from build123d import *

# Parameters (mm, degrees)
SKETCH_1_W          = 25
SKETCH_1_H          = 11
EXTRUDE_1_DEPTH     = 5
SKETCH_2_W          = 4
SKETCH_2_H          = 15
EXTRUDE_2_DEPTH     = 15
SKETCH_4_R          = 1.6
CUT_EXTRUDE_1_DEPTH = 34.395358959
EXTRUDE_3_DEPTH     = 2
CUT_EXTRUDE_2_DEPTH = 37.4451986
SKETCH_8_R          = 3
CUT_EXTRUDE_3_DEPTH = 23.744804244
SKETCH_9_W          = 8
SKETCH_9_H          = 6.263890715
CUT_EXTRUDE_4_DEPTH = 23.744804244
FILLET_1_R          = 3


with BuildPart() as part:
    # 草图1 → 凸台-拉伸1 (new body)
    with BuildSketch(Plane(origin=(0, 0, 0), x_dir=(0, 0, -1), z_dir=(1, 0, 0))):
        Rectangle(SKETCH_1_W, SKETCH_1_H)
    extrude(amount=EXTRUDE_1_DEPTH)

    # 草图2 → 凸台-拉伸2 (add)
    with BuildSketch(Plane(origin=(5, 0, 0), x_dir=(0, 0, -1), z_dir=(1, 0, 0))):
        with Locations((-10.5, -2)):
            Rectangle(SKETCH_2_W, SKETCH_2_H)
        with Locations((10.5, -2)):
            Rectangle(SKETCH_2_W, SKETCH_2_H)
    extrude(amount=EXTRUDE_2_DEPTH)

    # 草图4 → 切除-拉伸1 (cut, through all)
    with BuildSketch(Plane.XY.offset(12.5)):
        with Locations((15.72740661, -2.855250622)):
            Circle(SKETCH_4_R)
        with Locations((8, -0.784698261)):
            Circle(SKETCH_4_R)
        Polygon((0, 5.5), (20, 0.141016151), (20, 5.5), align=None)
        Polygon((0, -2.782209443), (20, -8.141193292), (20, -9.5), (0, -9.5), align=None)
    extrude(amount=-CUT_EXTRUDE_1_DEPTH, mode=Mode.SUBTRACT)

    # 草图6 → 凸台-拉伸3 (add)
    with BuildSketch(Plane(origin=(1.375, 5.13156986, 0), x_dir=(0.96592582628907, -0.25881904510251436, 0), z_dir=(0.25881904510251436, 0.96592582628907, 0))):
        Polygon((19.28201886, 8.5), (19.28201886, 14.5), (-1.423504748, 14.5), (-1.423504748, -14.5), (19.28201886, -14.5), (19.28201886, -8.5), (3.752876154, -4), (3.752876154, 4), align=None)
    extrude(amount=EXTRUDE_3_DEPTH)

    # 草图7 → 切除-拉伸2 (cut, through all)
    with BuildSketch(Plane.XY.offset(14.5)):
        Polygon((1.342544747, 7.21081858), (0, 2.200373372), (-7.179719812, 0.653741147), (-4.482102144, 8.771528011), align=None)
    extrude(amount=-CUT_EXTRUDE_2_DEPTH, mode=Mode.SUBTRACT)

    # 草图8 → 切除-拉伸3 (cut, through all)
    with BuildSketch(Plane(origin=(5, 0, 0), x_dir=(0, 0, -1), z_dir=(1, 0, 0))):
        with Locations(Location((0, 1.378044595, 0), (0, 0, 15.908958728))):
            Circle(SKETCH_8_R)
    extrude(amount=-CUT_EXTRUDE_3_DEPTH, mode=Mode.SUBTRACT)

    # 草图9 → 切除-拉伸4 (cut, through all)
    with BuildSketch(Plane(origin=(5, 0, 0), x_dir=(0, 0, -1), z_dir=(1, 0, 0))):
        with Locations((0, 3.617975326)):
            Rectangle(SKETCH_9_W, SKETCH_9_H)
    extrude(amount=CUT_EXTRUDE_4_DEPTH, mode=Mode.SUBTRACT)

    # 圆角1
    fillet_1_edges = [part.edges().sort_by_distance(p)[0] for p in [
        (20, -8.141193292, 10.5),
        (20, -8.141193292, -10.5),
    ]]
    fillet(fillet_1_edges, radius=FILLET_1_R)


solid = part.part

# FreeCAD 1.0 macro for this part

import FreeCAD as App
import Part
import Sketcher

V = App.Vector
Q = App.Units.Quantity


def edges_at(feature, points):
    """Names of the edges that pass closest to the given points."""
    edges = feature.Shape.Edges
    near = lambda p: min(range(len(edges)), key=lambda i: edges[i].distToShape(Part.Vertex(*p))[0])
    return sorted({f"Edge{near(p) + 1}" for p in points})


def add_polygon(sketch, points):
    """Adds a closed chain of lines whose ends are joined by coincident constraints."""
    first, n = sketch.GeometryCount, len(points)
    for a, b in zip(points, points[1:] + points[:1]):
        sketch.addGeometry(Part.LineSegment(App.Vector(*a, 0), App.Vector(*b, 0)), False)
    for i in range(n):
        sketch.addConstraint(Sketcher.Constraint("Coincident", first + i, 2, first + (i + 1) % n, 1))

doc = App.newDocument("Part")
body = doc.addObject("PartDesign::Body", "Body")

# Sketch on YZ plane
sketch1 = body.newObject("Sketcher::SketchObject", "Sketch")
sketch1.AttachmentSupport = (doc.getObject("YZ_Plane"), [""])
sketch1.MapMode = "FlatFace"
add_polygon(sketch1, [(6, 12), (-6, 12), (-6, -12), (6, -12)])  # lines 0-3
sketch1.addConstraint(Sketcher.Constraint("Horizontal", 0))
sketch1.addConstraint(Sketcher.Constraint("Vertical", 1))
sketch1.addConstraint(Sketcher.Constraint("Horizontal", 2))
sketch1.addConstraint(Sketcher.Constraint("Vertical", 3))
sketch1.addConstraint(Sketcher.Constraint("Symmetric", 0, 2, 2, 2, -1, 1))
sketch1.addConstraint(Sketcher.Constraint("DistanceX", 0, 2, 0, 1, Q("11 mm")))
sketch1.addConstraint(Sketcher.Constraint("DistanceY", 1, 2, 1, 1, Q("25 mm")))
pad1 = body.newObject("PartDesign::Pad", "Pad")
pad1.Profile = sketch1
pad1.Length = 5

# Sketch on YZ plane
sketch2 = body.newObject("Sketcher::SketchObject", "Sketch001")
sketch2.AttachmentSupport = (doc.getObject("YZ_Plane"), [""])
sketch2.MapMode = "FlatFace"
sketch2.AttachmentOffset = App.Placement(V(0, 0, 5), App.Rotation())
add_polygon(sketch2, [(5.5, 12.5), (-9.5, 12.5), (-9.5, 8.5), (5.5, 8.5)])  # lines 0-3
add_polygon(sketch2, [(5.5, -8.5), (-9.5, -8.5), (-9.5, -12.5), (5.5, -12.5)])  # lines 4-7
sketch2.addConstraint(Sketcher.Constraint("Horizontal", 0))
sketch2.addConstraint(Sketcher.Constraint("Vertical", 1))
sketch2.addConstraint(Sketcher.Constraint("Horizontal", 2))
sketch2.addConstraint(Sketcher.Constraint("Vertical", 3))
sketch2.addConstraint(Sketcher.Constraint("Horizontal", 4))
sketch2.addConstraint(Sketcher.Constraint("Vertical", 5))
sketch2.addConstraint(Sketcher.Constraint("Horizontal", 6))
sketch2.addConstraint(Sketcher.Constraint("Vertical", 7))
sketch2.addConstraint(Sketcher.Constraint("Symmetric", 1, 2, 4, 2, -1))
sketch2.addConstraint(Sketcher.Constraint("Symmetric", 3, 2, 6, 2, -1))
sketch2.addConstraint(Sketcher.Constraint("DistanceX", 0, 2, 0, 1, Q("15 mm")))
sketch2.addConstraint(Sketcher.Constraint("DistanceY", 1, 2, 1, 1, Q("4 mm")))
sketch2.addConstraint(Sketcher.Constraint("DistanceY", 4, 2, 1, 2, Q("17 mm")))
sketch2.addConstraint(Sketcher.Constraint("DistanceX", 0, 2, -1, 1, Q("9.5 mm")))
pad2 = body.newObject("PartDesign::Pad", "Pad001")
pad2.Profile = sketch2
pad2.Length = 15

# Sketch on XY plane
sketch3 = body.newObject("Sketcher::SketchObject", "Sketch002")
sketch3.AttachmentSupport = (doc.getObject("XY_Plane"), [""])
sketch3.MapMode = "FlatFace"
sketch3.AttachmentOffset = App.Placement(V(0, 0, 12.5), App.Rotation())
sketch3.addGeometry(Part.Circle(V(15.7, -2.9, 0), V(0, 0, 1), 1.6), False)  # 0
sketch3.addGeometry(Part.Circle(V(8, -0.8, 0), V(0, 0, 1), 1.6), False)  # 1
add_polygon(sketch3, [(0, 5.5), (20, 0.1), (20, 5.5)])  # lines 2-4
add_polygon(sketch3, [(20, -8.1), (0, -2.8), (0, -9.5), (20, -9.5)])  # lines 5-8
sketch3.addConstraint(Sketcher.Constraint("Vertical", 3))
sketch3.addConstraint(Sketcher.Constraint("Horizontal", 4))
sketch3.addConstraint(Sketcher.Constraint("Vertical", 6))
sketch3.addConstraint(Sketcher.Constraint("Horizontal", 7))
sketch3.addConstraint(Sketcher.Constraint("Vertical", 8))
sketch3.addConstraint(Sketcher.Constraint("Equal", 0, 1))
sketch3.addConstraint(Sketcher.Constraint("PointOnObject", 4, 2, -2))
sketch3.addConstraint(Sketcher.Constraint("PointOnObject", 5, 2, -2))
sketch3.addConstraint(Sketcher.Constraint("Parallel", 2, 5))
sketch3.addConstraint(Sketcher.Constraint("Vertical", 3, 2, 7, 2))
sketch3.addConstraint(Sketcher.Constraint("Diameter", 0, Q("3.2 mm")))
sketch3.addConstraint(Sketcher.Constraint("DistanceX", 4, 2, 4, 1, Q("20 mm")))
sketch3.addConstraint(Sketcher.Constraint("Angle", 2, Q("-15 deg")))
sketch3.addConstraint(Sketcher.Constraint("DistanceX", -1, 1, 1, 3, Q("8 mm")))
sketch3.addConstraint(Sketcher.Constraint("DistanceY", 6, 2, 4, 2, Q("15 mm")))
sketch3.addConstraint(Sketcher.Constraint("DistanceY", -1, 1, 3, 2, Q("5.5 mm")))
sketch3.addConstraint(Sketcher.Constraint("DistanceY", 6, 2, 6, 1, Q("6.717791 mm")))
sketch3.addConstraint(Sketcher.Constraint("DistanceY", 1, 3, -1, 1, Q("0.784698 mm")))
sketch3.addConstraint(Sketcher.Constraint("DistanceY", 0, 3, -1, 1, Q("2.855251 mm")))
sketch3.addConstraint(Sketcher.Constraint("DistanceX", -1, 1, 0, 3, Q("15.727407 mm")))
pocket1 = body.newObject("PartDesign::Pocket", "Pocket")
pocket1.Profile = sketch3
pocket1.Type = "ThroughAll"

# Sketch on an angled plane
sketch4 = body.newObject("Sketcher::SketchObject", "Sketch003")
sketch4.Placement = App.Placement(V(1.375, 5.13157, 0), App.Rotation(V(0.965925826, -0.258819045, 0), V(0, 0, -0.999999999), V(0.258819045, 0.965925826, 0), "ZXY"))
add_polygon(sketch4, [(19, 8), (19, 14), (-1, 14), (-1, -14), (19, -14), (19, -8), (4, -4), (4, 4)])  # lines 0-7
sketch4.addConstraint(Sketcher.Constraint("Vertical", 0))
sketch4.addConstraint(Sketcher.Constraint("Horizontal", 1))
sketch4.addConstraint(Sketcher.Constraint("Vertical", 2))
sketch4.addConstraint(Sketcher.Constraint("Horizontal", 3))
sketch4.addConstraint(Sketcher.Constraint("Vertical", 4))
sketch4.addConstraint(Sketcher.Constraint("Vertical", 6))
sketch4.addConstraint(Sketcher.Constraint("Symmetric", 0, 2, 3, 2, -1))
sketch4.addConstraint(Sketcher.Constraint("Equal", 0, 4))
sketch4.addConstraint(Sketcher.Constraint("Equal", 5, 7))
sketch4.addConstraint(Sketcher.Constraint("DistanceY", 0, 1, 0, 2, Q("6 mm")))
sketch4.addConstraint(Sketcher.Constraint("DistanceY", 2, 2, 2, 1, Q("29 mm")))
sketch4.addConstraint(Sketcher.Constraint("DistanceY", 6, 1, 6, 2, Q("8 mm")))
sketch4.addConstraint(Sketcher.Constraint("Distance", 5, Q("16.168002 mm")))
sketch4.addConstraint(Sketcher.Constraint("DistanceX", 1, 2, 1, 1, Q("20.705524 mm")))
sketch4.addConstraint(Sketcher.Constraint("DistanceX", -1, 1, 0, 2, Q("19.282019 mm")))
pad3 = body.newObject("PartDesign::Pad", "Pad002")
pad3.Profile = sketch4
pad3.Length = 2

# Sketch on XY plane
sketch5 = body.newObject("Sketcher::SketchObject", "Sketch004")
sketch5.AttachmentSupport = (doc.getObject("XY_Plane"), [""])
sketch5.MapMode = "FlatFace"
sketch5.AttachmentOffset = App.Placement(V(0, 0, 14.5), App.Rotation())
add_polygon(sketch5, [(0, 2), (1, 7), (-4, 9), (-7, 1)])  # lines 0-3
sketch5.addConstraint(Sketcher.Constraint("PointOnObject", 3, 2, -2))
sketch5.addConstraint(Sketcher.Constraint("Perpendicular", 0, 1))
sketch5.addConstraint(Sketcher.Constraint("Angle", 0, Q("75 deg")))
sketch5.addConstraint(Sketcher.Constraint("Distance", 1, Q("6.030118 mm")))
sketch5.addConstraint(Sketcher.Constraint("DistanceY", -1, 1, 0, 2, Q("7.210819 mm")))
sketch5.addConstraint(Sketcher.Constraint("DistanceX", 2, 2, -1, 1, Q("7.17972 mm")))
sketch5.addConstraint(Sketcher.Constraint("DistanceY", -1, 1, 2, 2, Q("0.653741 mm")))
sketch5.addConstraint(Sketcher.Constraint("Distance", 0, Q("5.187195 mm")))
pocket2 = body.newObject("PartDesign::Pocket", "Pocket001")
pocket2.Profile = sketch5
pocket2.Type = "ThroughAll"

# Sketch on YZ plane
sketch6 = body.newObject("Sketcher::SketchObject", "Sketch005")
sketch6.AttachmentSupport = (doc.getObject("YZ_Plane"), [""])
sketch6.MapMode = "FlatFace"
sketch6.AttachmentOffset = App.Placement(V(0, 0, 5), App.Rotation())
sketch6.addGeometry(Part.Circle(V(1.4, 0, 0), V(0, 0, 1), 3), False)
sketch6.addConstraint(Sketcher.Constraint("PointOnObject", 0, 3, -1))
sketch6.addConstraint(Sketcher.Constraint("Diameter", 0, Q("6 mm")))
sketch6.addConstraint(Sketcher.Constraint("DistanceX", -1, 1, 0, 3, Q("1.378045 mm")))
pocket3 = body.newObject("PartDesign::Pocket", "Pocket002")
pocket3.Profile = sketch6
pocket3.Type = "ThroughAll"

# Sketch on YZ plane
sketch7 = body.newObject("Sketcher::SketchObject", "Sketch006")
sketch7.AttachmentSupport = (doc.getObject("YZ_Plane"), [""])
sketch7.MapMode = "FlatFace"
sketch7.AttachmentOffset = App.Placement(V(0, 0, 5), App.Rotation())
add_polygon(sketch7, [(7, 4), (0, 4), (0, -4), (7, -4)])  # lines 0-3
sketch7.addConstraint(Sketcher.Constraint("Horizontal", 0))
sketch7.addConstraint(Sketcher.Constraint("Vertical", 1))
sketch7.addConstraint(Sketcher.Constraint("Horizontal", 2))
sketch7.addConstraint(Sketcher.Constraint("Vertical", 3))
sketch7.addConstraint(Sketcher.Constraint("DistanceY", 1, 2, 1, 1, Q("8 mm")))
sketch7.addConstraint(Sketcher.Constraint("DistanceY", -1, 1, 0, 2, Q("4 mm")))
sketch7.addConstraint(Sketcher.Constraint("DistanceX", 0, 2, 0, 1, Q("6.263891 mm")))
sketch7.addConstraint(Sketcher.Constraint("DistanceX", -1, 1, 0, 2, Q("0.48603 mm")))
pocket4 = body.newObject("PartDesign::Pocket", "Pocket003")
pocket4.Profile = sketch7
pocket4.Type = "ThroughAll"
pocket4.Reversed = True
doc.recompute()

fillet = body.newObject("PartDesign::Fillet", "Fillet")
fillet.Base = (pocket4, edges_at(pocket4, [(20, -8.141, 10.5), (20, -8.141, -10.5)]))
fillet.Radius = 3

doc.recompute()
